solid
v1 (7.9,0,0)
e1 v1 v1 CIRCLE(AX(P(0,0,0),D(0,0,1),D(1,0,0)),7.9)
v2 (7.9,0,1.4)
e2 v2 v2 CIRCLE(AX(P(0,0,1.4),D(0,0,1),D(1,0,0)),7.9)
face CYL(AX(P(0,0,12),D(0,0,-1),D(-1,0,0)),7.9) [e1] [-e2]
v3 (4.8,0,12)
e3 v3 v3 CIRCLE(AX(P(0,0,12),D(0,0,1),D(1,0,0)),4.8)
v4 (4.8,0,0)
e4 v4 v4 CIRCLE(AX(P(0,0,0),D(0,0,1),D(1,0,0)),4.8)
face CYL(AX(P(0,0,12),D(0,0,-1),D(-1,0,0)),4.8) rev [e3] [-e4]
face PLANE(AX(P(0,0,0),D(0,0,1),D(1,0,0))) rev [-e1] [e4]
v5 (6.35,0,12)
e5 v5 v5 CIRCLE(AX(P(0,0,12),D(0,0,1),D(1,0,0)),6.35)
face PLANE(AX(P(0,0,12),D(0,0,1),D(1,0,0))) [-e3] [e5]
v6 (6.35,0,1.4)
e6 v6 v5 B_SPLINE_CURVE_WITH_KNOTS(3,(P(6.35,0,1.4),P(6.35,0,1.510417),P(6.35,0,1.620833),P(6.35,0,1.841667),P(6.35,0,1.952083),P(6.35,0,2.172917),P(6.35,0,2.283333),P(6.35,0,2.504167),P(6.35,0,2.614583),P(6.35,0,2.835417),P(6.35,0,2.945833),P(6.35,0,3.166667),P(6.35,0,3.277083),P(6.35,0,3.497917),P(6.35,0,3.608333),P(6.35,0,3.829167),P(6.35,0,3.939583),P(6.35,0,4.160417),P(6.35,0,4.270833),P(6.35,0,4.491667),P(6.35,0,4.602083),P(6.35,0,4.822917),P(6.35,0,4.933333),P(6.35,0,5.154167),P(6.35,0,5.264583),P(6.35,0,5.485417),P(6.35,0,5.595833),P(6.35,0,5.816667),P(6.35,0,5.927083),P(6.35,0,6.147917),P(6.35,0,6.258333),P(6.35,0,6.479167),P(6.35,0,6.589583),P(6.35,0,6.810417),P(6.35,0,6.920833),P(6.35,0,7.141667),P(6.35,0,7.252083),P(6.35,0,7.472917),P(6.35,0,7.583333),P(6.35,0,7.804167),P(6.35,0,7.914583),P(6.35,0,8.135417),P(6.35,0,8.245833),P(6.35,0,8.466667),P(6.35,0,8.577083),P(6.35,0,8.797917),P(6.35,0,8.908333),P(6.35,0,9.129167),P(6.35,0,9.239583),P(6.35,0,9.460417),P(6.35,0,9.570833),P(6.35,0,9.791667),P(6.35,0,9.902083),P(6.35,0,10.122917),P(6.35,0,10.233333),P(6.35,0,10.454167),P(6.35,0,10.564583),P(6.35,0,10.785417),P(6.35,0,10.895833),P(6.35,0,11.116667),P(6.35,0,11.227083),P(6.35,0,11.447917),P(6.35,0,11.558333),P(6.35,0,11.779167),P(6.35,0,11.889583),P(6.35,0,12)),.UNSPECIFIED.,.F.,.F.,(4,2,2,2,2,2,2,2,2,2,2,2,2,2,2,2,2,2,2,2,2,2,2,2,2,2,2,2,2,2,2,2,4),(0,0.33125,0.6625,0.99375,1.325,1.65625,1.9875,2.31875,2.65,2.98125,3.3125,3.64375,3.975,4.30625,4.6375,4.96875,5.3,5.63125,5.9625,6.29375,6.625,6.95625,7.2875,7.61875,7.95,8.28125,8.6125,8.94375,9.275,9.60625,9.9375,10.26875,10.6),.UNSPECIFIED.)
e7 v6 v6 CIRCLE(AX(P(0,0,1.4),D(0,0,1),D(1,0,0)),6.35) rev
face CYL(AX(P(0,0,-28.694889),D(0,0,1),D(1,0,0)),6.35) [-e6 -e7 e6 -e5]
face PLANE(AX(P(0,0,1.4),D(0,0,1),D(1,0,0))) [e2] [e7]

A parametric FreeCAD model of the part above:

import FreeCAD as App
import Part
import Sketcher

doc = App.newDocument("Part")
body = doc.addObject("PartDesign::Body", "Body")

# Sketch on XY plane
sketch1 = body.newObject("Sketcher::SketchObject", "Sketch")
sketch1.AttachmentSupport = (doc.getObject("XY_Plane"), [""])
sketch1.MapMode = "FlatFace"
sketch1.addGeometry([
    Part.Circle(App.Vector(0, 0, 0), App.Vector(0, 0, 1), 7.9),
    Part.Circle(App.Vector(0, 0, 0), App.Vector(0, 0, 1), 4.8),
], False)
sketch1.addConstraint([
    Sketcher.Constraint("Coincident", 0, 3, -1, 1),
    Sketcher.Constraint("Coincident", 1, 3, -1, 1),
    Sketcher.Constraint("Diameter", 0, 15.8),
    Sketcher.Constraint("Diameter", 1, 9.6),
])
pad1 = body.newObject("PartDesign::Pad", "Pad")
pad1.Profile = sketch1
pad1.Length = 12

# Sketch on XY plane
sketch2 = body.newObject("Sketcher::SketchObject", "Sketch001")
sketch2.AttachmentSupport = (doc.getObject("XY_Plane"), [""])
sketch2.MapMode = "FlatFace"
sketch2.AttachmentOffset = App.Placement(App.Vector(0, 0, 12), App.Rotation())
sketch2.addGeometry([
    Part.Circle(App.Vector(0, 0, 0), App.Vector(0, 0, 1), 10.145175),
    Part.Circle(App.Vector(0, 0, 0), App.Vector(0, 0, 1), 6.35),
], False)
sketch2.addConstraint([
    Sketcher.Constraint("Coincident", 0, 3, -1, 1),
    Sketcher.Constraint("Coincident", 1, 3, -1, 1),
    Sketcher.Constraint("Diameter", 1, 12.7),
    Sketcher.Constraint("Diameter", 0, 20.290351),
])
pocket1 = body.newObject("PartDesign::Pocket", "Pocket")
pocket1.Profile = sketch2
pocket1.Length = 10.6

doc.recompute()
